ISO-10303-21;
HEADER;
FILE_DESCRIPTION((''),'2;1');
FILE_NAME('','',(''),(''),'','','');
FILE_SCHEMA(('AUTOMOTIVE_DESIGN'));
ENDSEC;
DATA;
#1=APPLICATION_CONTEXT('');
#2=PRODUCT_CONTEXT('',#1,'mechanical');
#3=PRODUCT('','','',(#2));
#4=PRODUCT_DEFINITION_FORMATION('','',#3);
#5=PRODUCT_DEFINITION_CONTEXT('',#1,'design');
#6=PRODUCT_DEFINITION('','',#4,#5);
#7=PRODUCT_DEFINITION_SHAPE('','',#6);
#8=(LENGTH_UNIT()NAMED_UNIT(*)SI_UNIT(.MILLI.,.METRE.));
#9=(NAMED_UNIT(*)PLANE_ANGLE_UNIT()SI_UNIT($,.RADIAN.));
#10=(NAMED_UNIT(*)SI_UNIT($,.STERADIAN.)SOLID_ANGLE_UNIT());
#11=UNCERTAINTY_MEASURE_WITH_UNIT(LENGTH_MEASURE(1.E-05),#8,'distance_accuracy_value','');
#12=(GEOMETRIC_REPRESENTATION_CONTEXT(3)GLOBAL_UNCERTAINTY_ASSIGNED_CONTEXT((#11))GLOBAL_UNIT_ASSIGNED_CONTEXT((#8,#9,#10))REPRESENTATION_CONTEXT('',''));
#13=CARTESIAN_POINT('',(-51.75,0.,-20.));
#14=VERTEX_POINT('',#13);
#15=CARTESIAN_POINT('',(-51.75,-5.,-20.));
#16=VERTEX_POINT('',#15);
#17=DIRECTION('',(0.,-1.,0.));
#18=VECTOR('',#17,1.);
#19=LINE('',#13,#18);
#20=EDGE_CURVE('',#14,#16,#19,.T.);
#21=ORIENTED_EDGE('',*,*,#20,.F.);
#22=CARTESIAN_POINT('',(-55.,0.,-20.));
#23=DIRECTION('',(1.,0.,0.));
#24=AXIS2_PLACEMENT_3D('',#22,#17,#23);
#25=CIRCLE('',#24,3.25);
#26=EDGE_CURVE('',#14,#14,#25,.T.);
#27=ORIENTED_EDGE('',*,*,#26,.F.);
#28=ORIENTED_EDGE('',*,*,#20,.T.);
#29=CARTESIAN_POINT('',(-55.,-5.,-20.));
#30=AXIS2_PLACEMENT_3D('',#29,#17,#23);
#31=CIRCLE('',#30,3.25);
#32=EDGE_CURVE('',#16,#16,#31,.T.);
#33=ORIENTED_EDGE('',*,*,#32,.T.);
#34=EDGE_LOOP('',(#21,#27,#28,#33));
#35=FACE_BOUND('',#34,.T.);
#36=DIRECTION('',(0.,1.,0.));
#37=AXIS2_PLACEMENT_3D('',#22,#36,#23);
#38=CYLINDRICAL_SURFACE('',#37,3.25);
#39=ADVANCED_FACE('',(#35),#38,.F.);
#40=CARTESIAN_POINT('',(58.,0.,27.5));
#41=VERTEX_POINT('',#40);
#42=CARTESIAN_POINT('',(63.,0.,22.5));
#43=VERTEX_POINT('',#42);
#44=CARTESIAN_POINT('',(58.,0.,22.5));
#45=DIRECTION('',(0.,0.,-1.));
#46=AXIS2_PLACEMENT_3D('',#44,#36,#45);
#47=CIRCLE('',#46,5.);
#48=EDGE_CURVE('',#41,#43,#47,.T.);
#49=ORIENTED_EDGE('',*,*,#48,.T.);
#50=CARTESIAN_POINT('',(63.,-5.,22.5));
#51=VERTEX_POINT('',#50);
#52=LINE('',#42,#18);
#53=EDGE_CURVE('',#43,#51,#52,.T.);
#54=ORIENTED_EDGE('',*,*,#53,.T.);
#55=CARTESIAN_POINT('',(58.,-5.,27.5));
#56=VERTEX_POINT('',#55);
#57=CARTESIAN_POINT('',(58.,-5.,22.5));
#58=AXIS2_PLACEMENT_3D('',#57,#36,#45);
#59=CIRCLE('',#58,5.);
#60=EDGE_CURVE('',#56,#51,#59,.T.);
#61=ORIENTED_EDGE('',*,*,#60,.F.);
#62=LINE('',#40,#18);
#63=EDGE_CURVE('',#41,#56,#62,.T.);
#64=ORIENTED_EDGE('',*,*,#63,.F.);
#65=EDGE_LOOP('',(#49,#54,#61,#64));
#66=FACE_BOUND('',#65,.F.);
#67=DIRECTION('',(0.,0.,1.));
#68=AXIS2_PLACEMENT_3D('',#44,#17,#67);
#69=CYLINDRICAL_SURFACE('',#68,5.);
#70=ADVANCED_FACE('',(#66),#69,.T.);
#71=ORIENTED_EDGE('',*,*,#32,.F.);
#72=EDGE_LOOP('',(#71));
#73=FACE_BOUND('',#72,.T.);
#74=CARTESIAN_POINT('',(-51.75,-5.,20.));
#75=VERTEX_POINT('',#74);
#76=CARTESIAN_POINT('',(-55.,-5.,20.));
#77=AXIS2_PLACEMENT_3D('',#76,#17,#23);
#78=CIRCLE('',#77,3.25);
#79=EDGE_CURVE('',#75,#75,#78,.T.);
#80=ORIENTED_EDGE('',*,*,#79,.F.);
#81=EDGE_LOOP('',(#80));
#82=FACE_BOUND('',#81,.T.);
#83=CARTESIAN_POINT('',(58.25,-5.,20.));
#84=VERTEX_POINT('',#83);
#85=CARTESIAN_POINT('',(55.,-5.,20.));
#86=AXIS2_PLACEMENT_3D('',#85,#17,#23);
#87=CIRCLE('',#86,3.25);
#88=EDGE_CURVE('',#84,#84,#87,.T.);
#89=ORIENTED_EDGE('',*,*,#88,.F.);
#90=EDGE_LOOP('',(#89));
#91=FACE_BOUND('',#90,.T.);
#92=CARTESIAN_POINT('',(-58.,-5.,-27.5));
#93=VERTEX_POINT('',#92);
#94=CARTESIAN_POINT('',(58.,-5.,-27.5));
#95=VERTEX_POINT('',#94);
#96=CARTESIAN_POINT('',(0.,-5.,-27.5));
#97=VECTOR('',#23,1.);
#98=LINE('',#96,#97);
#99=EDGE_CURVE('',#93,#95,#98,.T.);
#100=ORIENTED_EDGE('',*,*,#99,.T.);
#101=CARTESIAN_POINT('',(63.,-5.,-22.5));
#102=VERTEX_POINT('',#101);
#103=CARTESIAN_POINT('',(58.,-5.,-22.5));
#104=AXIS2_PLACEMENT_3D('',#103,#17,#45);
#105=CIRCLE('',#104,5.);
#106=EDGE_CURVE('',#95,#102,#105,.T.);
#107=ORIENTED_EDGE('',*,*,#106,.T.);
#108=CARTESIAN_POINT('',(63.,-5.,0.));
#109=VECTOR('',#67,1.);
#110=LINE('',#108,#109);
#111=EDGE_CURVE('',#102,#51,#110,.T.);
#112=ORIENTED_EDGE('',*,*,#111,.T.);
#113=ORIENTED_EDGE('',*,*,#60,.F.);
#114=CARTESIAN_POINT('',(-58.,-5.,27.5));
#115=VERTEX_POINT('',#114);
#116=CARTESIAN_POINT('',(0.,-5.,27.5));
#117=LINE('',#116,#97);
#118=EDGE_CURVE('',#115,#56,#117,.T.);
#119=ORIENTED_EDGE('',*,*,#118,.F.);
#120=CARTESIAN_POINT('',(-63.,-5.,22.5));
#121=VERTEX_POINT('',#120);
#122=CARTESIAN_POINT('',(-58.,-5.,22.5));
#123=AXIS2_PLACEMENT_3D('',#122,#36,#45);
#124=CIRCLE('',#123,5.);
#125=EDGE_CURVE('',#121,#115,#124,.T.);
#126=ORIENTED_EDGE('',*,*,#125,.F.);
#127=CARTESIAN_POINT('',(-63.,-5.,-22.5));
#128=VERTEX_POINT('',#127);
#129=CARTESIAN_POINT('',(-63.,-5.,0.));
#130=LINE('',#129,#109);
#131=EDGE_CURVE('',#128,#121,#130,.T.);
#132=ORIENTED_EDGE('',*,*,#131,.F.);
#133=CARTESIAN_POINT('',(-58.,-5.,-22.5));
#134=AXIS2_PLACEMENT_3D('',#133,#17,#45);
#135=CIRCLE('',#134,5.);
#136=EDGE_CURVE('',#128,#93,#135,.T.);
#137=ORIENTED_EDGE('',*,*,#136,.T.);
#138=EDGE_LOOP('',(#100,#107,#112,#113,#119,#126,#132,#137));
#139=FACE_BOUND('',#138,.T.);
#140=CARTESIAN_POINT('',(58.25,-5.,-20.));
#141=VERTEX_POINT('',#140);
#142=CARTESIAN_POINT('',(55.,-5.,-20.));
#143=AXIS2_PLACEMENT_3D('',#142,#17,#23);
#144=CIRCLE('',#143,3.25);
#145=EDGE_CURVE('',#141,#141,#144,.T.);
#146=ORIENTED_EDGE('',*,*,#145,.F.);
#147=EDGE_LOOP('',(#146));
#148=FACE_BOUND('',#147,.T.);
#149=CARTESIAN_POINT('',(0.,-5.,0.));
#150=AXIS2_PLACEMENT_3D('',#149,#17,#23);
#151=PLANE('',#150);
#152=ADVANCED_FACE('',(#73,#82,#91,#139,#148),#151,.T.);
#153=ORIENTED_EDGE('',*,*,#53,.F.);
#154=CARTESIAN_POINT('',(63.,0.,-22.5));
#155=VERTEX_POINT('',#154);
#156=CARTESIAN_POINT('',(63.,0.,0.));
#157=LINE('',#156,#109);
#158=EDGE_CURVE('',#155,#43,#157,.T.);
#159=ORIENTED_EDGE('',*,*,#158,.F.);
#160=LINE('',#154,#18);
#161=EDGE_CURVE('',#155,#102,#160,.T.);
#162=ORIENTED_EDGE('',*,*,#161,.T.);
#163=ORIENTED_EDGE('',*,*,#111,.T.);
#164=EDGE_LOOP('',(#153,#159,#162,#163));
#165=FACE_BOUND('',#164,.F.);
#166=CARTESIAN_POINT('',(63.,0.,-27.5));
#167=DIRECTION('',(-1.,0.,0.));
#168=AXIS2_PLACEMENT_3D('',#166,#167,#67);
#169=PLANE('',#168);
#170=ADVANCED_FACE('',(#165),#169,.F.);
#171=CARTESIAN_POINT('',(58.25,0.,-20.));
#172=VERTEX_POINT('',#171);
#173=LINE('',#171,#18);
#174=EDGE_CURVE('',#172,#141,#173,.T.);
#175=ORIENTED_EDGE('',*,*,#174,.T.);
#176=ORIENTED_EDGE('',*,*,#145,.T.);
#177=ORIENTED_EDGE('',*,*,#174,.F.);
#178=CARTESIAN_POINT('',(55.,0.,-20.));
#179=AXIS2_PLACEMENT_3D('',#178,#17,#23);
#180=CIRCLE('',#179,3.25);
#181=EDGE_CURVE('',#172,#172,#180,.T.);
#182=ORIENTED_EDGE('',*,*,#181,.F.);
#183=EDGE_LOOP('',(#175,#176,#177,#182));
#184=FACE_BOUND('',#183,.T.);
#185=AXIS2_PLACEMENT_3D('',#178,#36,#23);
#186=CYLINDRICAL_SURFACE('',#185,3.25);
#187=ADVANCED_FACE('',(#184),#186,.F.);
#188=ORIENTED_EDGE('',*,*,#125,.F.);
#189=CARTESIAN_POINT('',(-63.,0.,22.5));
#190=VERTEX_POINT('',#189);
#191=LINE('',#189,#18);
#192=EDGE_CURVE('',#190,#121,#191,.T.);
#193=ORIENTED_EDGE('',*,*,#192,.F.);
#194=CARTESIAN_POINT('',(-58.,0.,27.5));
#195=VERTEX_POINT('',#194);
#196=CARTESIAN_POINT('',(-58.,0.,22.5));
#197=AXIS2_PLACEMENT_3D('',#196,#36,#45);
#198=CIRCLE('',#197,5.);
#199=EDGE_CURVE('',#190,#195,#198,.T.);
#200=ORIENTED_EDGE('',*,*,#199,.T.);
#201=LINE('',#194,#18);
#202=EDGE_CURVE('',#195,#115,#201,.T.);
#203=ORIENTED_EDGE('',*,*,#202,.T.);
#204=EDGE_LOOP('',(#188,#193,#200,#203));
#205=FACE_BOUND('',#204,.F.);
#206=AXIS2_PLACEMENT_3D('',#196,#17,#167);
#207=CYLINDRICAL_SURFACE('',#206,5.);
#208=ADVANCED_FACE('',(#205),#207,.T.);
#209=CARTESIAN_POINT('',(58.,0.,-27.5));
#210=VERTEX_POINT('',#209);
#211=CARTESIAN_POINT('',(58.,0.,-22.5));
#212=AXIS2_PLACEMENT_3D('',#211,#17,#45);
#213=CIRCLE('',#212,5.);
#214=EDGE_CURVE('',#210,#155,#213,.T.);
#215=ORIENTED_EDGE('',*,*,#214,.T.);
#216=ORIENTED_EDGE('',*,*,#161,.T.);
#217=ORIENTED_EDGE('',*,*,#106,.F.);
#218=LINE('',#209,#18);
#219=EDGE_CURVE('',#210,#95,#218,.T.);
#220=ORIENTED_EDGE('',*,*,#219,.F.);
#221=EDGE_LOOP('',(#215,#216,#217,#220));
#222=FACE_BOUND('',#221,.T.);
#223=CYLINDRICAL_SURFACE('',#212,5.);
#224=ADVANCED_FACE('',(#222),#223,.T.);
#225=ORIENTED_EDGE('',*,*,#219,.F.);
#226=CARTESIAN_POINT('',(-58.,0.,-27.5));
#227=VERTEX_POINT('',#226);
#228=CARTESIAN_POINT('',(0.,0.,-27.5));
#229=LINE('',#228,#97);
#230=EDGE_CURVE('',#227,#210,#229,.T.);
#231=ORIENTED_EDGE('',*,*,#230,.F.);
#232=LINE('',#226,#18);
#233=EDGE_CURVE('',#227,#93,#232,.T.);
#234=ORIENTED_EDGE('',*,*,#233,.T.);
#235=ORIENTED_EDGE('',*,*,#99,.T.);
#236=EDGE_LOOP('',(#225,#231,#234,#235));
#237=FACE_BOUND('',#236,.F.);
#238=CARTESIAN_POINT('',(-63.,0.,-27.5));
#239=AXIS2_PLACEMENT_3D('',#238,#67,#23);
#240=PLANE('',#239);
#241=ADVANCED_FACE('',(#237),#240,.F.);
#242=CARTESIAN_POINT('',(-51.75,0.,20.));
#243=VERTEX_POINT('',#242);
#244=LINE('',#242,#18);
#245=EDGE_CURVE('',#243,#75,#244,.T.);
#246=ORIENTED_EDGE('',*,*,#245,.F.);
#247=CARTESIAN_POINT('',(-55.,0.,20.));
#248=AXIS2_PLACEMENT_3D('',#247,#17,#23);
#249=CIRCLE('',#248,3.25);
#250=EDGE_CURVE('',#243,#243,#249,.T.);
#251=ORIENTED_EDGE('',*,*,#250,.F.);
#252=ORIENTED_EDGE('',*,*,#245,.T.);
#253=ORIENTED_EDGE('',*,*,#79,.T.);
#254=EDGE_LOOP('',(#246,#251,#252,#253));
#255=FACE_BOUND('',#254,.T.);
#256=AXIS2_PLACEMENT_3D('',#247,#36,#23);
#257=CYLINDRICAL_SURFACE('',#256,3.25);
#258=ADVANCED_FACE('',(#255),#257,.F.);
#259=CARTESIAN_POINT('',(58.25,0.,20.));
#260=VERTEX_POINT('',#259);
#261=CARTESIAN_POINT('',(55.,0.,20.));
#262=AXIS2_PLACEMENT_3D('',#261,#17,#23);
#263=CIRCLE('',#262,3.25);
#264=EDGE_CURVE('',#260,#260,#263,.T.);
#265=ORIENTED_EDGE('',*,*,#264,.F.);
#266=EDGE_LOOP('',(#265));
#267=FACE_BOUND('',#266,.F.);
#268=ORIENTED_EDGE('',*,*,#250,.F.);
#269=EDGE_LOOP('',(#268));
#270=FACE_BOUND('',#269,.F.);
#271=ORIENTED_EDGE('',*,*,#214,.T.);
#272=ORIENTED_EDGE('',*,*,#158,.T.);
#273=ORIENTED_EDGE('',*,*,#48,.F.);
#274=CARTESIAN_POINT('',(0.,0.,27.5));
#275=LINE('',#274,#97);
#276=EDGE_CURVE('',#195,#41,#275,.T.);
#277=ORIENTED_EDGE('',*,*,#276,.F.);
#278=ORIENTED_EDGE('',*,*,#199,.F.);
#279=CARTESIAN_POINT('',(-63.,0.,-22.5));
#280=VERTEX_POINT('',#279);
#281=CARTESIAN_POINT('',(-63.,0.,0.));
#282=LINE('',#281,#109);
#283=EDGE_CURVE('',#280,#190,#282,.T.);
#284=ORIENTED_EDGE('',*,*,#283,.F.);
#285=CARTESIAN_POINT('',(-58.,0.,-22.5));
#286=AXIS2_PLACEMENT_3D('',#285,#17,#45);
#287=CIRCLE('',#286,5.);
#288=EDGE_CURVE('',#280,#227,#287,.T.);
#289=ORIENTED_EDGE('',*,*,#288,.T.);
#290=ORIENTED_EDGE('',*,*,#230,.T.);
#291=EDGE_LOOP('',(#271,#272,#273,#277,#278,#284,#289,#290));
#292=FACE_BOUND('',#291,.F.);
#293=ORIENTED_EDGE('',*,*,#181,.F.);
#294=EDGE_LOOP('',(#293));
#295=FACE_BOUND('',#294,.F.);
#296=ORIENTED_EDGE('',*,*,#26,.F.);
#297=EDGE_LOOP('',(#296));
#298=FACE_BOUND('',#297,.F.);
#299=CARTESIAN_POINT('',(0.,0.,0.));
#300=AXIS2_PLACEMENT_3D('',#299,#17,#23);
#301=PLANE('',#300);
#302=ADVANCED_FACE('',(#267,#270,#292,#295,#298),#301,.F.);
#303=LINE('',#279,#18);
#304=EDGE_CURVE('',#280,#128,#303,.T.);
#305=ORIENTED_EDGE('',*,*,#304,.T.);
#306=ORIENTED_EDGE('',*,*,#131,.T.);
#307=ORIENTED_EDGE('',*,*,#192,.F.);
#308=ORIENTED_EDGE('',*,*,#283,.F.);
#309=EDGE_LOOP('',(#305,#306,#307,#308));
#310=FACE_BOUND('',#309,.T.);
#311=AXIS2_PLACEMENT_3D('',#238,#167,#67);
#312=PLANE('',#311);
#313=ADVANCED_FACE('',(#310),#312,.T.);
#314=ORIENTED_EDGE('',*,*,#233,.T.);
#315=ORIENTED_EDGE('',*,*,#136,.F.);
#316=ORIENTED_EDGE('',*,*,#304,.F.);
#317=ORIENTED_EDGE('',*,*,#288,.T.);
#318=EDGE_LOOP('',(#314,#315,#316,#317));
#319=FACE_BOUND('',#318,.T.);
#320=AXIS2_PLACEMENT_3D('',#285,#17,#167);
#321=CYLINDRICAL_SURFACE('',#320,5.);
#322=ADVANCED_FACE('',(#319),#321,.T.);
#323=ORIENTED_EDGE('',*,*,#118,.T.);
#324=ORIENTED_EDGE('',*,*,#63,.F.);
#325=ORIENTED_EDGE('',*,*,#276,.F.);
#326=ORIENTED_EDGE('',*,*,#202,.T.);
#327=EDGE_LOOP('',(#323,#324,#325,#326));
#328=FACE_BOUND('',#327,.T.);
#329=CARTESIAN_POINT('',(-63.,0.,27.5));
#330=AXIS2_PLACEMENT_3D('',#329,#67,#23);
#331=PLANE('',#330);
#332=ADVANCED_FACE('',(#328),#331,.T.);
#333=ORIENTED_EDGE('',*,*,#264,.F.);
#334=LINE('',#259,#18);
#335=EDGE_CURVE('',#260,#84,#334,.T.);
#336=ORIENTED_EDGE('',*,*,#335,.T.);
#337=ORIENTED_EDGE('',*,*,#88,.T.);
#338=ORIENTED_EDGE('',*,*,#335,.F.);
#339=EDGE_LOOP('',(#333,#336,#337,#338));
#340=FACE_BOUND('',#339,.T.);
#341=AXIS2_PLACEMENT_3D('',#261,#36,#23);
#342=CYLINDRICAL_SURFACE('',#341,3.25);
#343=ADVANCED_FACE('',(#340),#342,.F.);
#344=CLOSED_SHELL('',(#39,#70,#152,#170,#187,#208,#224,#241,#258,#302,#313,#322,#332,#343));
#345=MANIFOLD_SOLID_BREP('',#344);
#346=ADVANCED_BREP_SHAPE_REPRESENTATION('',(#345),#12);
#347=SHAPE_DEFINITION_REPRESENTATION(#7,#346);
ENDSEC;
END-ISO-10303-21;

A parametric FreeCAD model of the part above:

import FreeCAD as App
import Part
import Sketcher
from FreeCAD import Vector
Q = App.Units.Quantity


def edges_at(feature, points):
    """Names of the edges that pass closest to the given points."""
    edges = feature.Shape.Edges
    near = lambda p: min(range(len(edges)), key=lambda i: edges[i].distToShape(Part.Vertex(*p))[0])
    return sorted({f"Edge{near(p) + 1}" for p in points})


def add_polygon(sketch, points):
    """Adds a closed chain of lines whose ends are joined by coincident constraints."""
    first, n = sketch.GeometryCount, len(points)
    for a, b in zip(points, points[1:] + points[:1]):
        sketch.addGeometry(Part.LineSegment(App.Vector(*a, 0), App.Vector(*b, 0)), False)
    for i in range(n):
        sketch.addConstraint(Sketcher.Constraint("Coincident", first + i, 2, first + (i + 1) % n, 1))

doc = App.newDocument("Part")
body = doc.addObject("PartDesign::Body", "Body")

# Sketch on XZ plane
sketch1 = body.newObject("Sketcher::SketchObject", "Sketch")
sketch1.AttachmentSupport = (doc.getObject("XZ_Plane"), [""])
sketch1.MapMode = "FlatFace"
add_polygon(sketch1, [(-63, 27.5), (-63, -27.5), (63, -27.5), (63, 27.5)])  # lines 0-3
sketch1.addGeometry(Part.Circle(Vector(-55, -20, 0), Vector(0, 0, 1), 3.2), False)  # 4
sketch1.addGeometry(Part.Circle(Vector(55, -20, 0), Vector(0, 0, 1), 3.2), False)  # 5
sketch1.addGeometry(Part.Circle(Vector(-55, 20, 0), Vector(0, 0, 1), 3.2), False)  # 6
sketch1.addGeometry(Part.Circle(Vector(55, 20, 0), Vector(0, 0, 1), 3.2), False)  # 7
sketch1.addConstraint([
    Sketcher.Constraint("Vertical", 0),
    Sketcher.Constraint("Horizontal", 1),
    Sketcher.Constraint("Vertical", 2),
    Sketcher.Constraint("Horizontal", 3),
    Sketcher.Constraint("Equal", 4, 5),
    Sketcher.Constraint("Equal", 5, 6),
    Sketcher.Constraint("Equal", 6, 7),
    Sketcher.Constraint("Symmetric", 5, 3, 6, 3, -1, 1),
    Sketcher.Constraint("Symmetric", 4, 3, 7, 3, -1, 1),
    Sketcher.Constraint("Symmetric", 0, 2, 2, 2, -1, 1),
    Sketcher.Constraint("Symmetric", 4, 3, 5, 3, -2),
    Sketcher.Constraint("Diameter", 4, Q("6.5 mm")),
    Sketcher.Constraint("DistanceX", 1, 1, 1, 2, Q("126 mm")),
    Sketcher.Constraint("DistanceY", 0, 2, 0, 1, Q("55 mm")),
    Sketcher.Constraint("DistanceX", 4, 3, -1, 1, Q("55 mm")),
    Sketcher.Constraint("DistanceY", 4, 3, -1, 1, Q("20 mm")),
])
pad1 = body.newObject("PartDesign::Pad", "Pad")
pad1.Profile = sketch1
pad1.Length = 5
doc.recompute()

fillet = body.newObject("PartDesign::Fillet", "Fillet")
fillet.Base = (pad1, edges_at(pad1, [
    (63, -2.5, 27.5),
    (63, -2.5, -27.5),
    (-63, -2.5, 27.5),
    (-63, -2.5, -27.5),
]))
fillet.Radius = 5

doc.recompute()
